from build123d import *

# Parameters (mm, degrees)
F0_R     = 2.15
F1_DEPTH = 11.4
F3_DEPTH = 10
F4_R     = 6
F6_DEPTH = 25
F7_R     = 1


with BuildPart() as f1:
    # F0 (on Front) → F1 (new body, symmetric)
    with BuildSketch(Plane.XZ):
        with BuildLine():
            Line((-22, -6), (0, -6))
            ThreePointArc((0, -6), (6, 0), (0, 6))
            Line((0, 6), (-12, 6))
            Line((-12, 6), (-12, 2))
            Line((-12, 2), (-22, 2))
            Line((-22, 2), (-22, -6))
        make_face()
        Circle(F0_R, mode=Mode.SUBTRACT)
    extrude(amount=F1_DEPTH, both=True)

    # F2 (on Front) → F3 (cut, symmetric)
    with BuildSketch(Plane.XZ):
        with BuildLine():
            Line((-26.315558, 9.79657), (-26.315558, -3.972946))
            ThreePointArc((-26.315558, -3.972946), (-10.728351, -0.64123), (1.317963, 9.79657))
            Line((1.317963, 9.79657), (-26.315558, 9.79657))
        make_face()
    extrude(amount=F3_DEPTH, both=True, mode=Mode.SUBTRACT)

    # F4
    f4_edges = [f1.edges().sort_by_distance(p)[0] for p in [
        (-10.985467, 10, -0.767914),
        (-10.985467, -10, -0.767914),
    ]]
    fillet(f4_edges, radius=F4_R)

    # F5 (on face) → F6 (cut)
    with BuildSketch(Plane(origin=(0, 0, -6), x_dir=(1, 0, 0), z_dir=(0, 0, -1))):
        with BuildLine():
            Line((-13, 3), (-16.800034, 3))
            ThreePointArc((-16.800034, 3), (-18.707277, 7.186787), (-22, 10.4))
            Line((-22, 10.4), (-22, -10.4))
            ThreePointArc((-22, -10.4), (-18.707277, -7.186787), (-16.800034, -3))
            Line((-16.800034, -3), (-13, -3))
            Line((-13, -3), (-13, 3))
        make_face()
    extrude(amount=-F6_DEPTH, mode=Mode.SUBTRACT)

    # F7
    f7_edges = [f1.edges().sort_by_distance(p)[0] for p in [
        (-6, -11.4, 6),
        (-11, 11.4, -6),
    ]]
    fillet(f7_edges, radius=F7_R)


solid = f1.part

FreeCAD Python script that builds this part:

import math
import FreeCAD as App
import Part
import Sketcher


def edges_at(feature, points):
    """Names of the edges that pass closest to the given points."""
    edges = feature.Shape.Edges
    near = lambda p: min(range(len(edges)), key=lambda i: edges[i].distToShape(Part.Vertex(*p))[0])
    return sorted({f"Edge{near(p) + 1}" for p in points})

doc = App.newDocument("Part")
body = doc.addObject("PartDesign::Body", "Body")

sketch1 = body.newObject("Sketcher::SketchObject", "Sketch")
sketch1.AttachmentSupport = (doc.getObject("XZ_Plane"), [""])
sketch1.MapMode = "FlatFace"
sketch1.addGeometry([
    Part.LineSegment(App.Vector(-22, -6, 0), App.Vector(0, -6, 0)),
    Part.ArcOfCircle(Part.Circle(App.Vector(0, 0, 0), App.Vector(0, 0, 1), 6), math.radians(-90), math.radians(90)),
    Part.LineSegment(App.Vector(0, 6, 0), App.Vector(-12, 6, 0)),
    Part.LineSegment(App.Vector(-12, 6, 0), App.Vector(-12, 2, 0)),
    Part.LineSegment(App.Vector(-12, 2, 0), App.Vector(-22, 2, 0)),
    Part.LineSegment(App.Vector(-22, 2, 0), App.Vector(-22, -6, 0)),
    Part.Circle(App.Vector(0, 0, 0), App.Vector(0, 0, 1), 2.1),
], False)
sketch1.addConstraint([
    Sketcher.Constraint("Tangent", 0, 2, 1, 1),
    Sketcher.Constraint("Tangent", 1, 2, 2, 1),
    Sketcher.Constraint("Coincident", 2, 2, 3, 1),
    Sketcher.Constraint("Coincident", 3, 2, 4, 1),
    Sketcher.Constraint("Coincident", 4, 2, 5, 1),
    Sketcher.Constraint("Coincident", 5, 2, 0, 1),
    Sketcher.Constraint("Horizontal", 0),
    Sketcher.Constraint("Horizontal", 2),
    Sketcher.Constraint("Vertical", 3),
    Sketcher.Constraint("Horizontal", 4),
    Sketcher.Constraint("Vertical", 5),
    Sketcher.Constraint("Coincident", 1, 3, -1, 1),
    Sketcher.Constraint("Coincident", 6, 3, -1, 1),
    Sketcher.Constraint("Radius", 1, 6.0),
    Sketcher.Constraint("Diameter", 6, 4.3),
    Sketcher.Constraint("DistanceX", 0, 1, 0, 2, 22.0),
    Sketcher.Constraint("DistanceX", 2, 2, 2, 1, 12.0),
    Sketcher.Constraint("DistanceY", 3, 2, 3, 1, 4.0),
])
pad1 = body.newObject("PartDesign::Pad", "Pad")
pad1.Profile = sketch1
pad1.Length = 22.8
pad1.Midplane = True

sketch2 = body.newObject("Sketcher::SketchObject", "Sketch001")
sketch2.AttachmentSupport = (doc.getObject("XZ_Plane"), [""])
sketch2.MapMode = "FlatFace"
sketch2.addGeometry([
    Part.LineSegment(App.Vector(-26, 10, 0), App.Vector(-26, -4, 0)),
    Part.ArcOfCircle(Part.Circle(App.Vector(-25, 28, 0), App.Vector(0, 0, 1), 32), math.radians(-92), math.radians(-35)),
    Part.LineSegment(App.Vector(1, 10, 0), App.Vector(-26, 10, 0)),
], False)
sketch2.addConstraint([
    Sketcher.Constraint("Coincident", 0, 2, 1, 1),
    Sketcher.Constraint("Coincident", 1, 2, 2, 1),
    Sketcher.Constraint("Coincident", 2, 2, 0, 1),
    Sketcher.Constraint("Vertical", 0),
    Sketcher.Constraint("Horizontal", 2),
    Sketcher.Constraint("Radius", 1, 31.999998),
    Sketcher.Constraint("DistanceX", 1, 3, -1, 1, 24.999998),
    Sketcher.Constraint("DistanceY", -1, 1, 1, 3, 27.999999),
    Sketcher.Constraint("DistanceX", 2, 2, 2, 1, 27.633521),
    Sketcher.Constraint("DistanceY", 0, 2, 0, 1, 13.769516),
])
pocket1 = body.newObject("PartDesign::Pocket", "Pocket")
pocket1.Profile = sketch2
pocket1.Length = 20
pocket1.Midplane = True
doc.recompute()

fillet = body.newObject("PartDesign::Fillet", "Fillet")
fillet.Base = (pocket1, edges_at(pocket1, [(-10.985, 10, -0.768), (-10.985, -10, -0.768)]))
fillet.Radius = 6

sketch3 = body.newObject("Sketcher::SketchObject", "Sketch002")
sketch3.AttachmentSupport = (doc.getObject("XY_Plane"), [""])
sketch3.MapMode = "FlatFace"
sketch3.AttachmentOffset = App.Placement(App.Vector(0, 0, -6), App.Rotation())
sketch3.addGeometry([
    Part.LineSegment(App.Vector(-13, -3, 0), App.Vector(-16.8, -3, 0)),
    Part.ArcOfCircle(Part.Circle(App.Vector(-28.9, 0, 0), App.Vector(0, 0, 1), 12.5), math.radians(-56), math.radians(-14)),
    Part.LineSegment(App.Vector(-22, -10.4, 0), App.Vector(-22, 10.4, 0)),
    Part.ArcOfCircle(Part.Circle(App.Vector(-28.9, 0, 0), App.Vector(0, 0, 1), 12.5), math.radians(14), math.radians(56)),
    Part.LineSegment(App.Vector(-16.8, 3, 0), App.Vector(-13, 3, 0)),
    Part.LineSegment(App.Vector(-13, 3, 0), App.Vector(-13, -3, 0)),
], False)
sketch3.addConstraint([
    Sketcher.Constraint("Coincident", 0, 2, 1, 2),
    Sketcher.Constraint("Coincident", 1, 1, 2, 1),
    Sketcher.Constraint("Coincident", 2, 2, 3, 2),
    Sketcher.Constraint("Coincident", 3, 1, 4, 1),
    Sketcher.Constraint("Coincident", 4, 2, 5, 1),
    Sketcher.Constraint("Coincident", 5, 2, 0, 1),
    Sketcher.Constraint("Horizontal", 0),
    Sketcher.Constraint("Vertical", 2),
    Sketcher.Constraint("Horizontal", 4),
    Sketcher.Constraint("Vertical", 5),
    Sketcher.Constraint("Coincident", 3, 3, 1, 3),
    Sketcher.Constraint("Equal", 1, 3),
    Sketcher.Constraint("Symmetric", 0, 2, 3, 1, -1),
    Sketcher.Constraint("DistanceY", 5, 2, 5, 1, 6.0),
    Sketcher.Constraint("DistanceY", 2, 1, 2, 2, 20.8),
    Sketcher.Constraint("DistanceX", 1, 1, -1, 1, 22.0),
    Sketcher.Constraint("DistanceX", 4, 2, -1, 1, 13.0),
    Sketcher.Constraint("Radius", 1, 12.500005),
])
pocket2 = body.newObject("PartDesign::Pocket", "Pocket001")
pocket2.Profile = sketch3
pocket2.Length = 25
pocket2.Reversed = True
doc.recompute()

fillet2 = body.newObject("PartDesign::Fillet", "Fillet001")
fillet2.Base = (pocket2, edges_at(pocket2, [(-6, -11.4, 6), (-11, 11.4, -6)]))
fillet2.Radius = 1

doc.recompute()
